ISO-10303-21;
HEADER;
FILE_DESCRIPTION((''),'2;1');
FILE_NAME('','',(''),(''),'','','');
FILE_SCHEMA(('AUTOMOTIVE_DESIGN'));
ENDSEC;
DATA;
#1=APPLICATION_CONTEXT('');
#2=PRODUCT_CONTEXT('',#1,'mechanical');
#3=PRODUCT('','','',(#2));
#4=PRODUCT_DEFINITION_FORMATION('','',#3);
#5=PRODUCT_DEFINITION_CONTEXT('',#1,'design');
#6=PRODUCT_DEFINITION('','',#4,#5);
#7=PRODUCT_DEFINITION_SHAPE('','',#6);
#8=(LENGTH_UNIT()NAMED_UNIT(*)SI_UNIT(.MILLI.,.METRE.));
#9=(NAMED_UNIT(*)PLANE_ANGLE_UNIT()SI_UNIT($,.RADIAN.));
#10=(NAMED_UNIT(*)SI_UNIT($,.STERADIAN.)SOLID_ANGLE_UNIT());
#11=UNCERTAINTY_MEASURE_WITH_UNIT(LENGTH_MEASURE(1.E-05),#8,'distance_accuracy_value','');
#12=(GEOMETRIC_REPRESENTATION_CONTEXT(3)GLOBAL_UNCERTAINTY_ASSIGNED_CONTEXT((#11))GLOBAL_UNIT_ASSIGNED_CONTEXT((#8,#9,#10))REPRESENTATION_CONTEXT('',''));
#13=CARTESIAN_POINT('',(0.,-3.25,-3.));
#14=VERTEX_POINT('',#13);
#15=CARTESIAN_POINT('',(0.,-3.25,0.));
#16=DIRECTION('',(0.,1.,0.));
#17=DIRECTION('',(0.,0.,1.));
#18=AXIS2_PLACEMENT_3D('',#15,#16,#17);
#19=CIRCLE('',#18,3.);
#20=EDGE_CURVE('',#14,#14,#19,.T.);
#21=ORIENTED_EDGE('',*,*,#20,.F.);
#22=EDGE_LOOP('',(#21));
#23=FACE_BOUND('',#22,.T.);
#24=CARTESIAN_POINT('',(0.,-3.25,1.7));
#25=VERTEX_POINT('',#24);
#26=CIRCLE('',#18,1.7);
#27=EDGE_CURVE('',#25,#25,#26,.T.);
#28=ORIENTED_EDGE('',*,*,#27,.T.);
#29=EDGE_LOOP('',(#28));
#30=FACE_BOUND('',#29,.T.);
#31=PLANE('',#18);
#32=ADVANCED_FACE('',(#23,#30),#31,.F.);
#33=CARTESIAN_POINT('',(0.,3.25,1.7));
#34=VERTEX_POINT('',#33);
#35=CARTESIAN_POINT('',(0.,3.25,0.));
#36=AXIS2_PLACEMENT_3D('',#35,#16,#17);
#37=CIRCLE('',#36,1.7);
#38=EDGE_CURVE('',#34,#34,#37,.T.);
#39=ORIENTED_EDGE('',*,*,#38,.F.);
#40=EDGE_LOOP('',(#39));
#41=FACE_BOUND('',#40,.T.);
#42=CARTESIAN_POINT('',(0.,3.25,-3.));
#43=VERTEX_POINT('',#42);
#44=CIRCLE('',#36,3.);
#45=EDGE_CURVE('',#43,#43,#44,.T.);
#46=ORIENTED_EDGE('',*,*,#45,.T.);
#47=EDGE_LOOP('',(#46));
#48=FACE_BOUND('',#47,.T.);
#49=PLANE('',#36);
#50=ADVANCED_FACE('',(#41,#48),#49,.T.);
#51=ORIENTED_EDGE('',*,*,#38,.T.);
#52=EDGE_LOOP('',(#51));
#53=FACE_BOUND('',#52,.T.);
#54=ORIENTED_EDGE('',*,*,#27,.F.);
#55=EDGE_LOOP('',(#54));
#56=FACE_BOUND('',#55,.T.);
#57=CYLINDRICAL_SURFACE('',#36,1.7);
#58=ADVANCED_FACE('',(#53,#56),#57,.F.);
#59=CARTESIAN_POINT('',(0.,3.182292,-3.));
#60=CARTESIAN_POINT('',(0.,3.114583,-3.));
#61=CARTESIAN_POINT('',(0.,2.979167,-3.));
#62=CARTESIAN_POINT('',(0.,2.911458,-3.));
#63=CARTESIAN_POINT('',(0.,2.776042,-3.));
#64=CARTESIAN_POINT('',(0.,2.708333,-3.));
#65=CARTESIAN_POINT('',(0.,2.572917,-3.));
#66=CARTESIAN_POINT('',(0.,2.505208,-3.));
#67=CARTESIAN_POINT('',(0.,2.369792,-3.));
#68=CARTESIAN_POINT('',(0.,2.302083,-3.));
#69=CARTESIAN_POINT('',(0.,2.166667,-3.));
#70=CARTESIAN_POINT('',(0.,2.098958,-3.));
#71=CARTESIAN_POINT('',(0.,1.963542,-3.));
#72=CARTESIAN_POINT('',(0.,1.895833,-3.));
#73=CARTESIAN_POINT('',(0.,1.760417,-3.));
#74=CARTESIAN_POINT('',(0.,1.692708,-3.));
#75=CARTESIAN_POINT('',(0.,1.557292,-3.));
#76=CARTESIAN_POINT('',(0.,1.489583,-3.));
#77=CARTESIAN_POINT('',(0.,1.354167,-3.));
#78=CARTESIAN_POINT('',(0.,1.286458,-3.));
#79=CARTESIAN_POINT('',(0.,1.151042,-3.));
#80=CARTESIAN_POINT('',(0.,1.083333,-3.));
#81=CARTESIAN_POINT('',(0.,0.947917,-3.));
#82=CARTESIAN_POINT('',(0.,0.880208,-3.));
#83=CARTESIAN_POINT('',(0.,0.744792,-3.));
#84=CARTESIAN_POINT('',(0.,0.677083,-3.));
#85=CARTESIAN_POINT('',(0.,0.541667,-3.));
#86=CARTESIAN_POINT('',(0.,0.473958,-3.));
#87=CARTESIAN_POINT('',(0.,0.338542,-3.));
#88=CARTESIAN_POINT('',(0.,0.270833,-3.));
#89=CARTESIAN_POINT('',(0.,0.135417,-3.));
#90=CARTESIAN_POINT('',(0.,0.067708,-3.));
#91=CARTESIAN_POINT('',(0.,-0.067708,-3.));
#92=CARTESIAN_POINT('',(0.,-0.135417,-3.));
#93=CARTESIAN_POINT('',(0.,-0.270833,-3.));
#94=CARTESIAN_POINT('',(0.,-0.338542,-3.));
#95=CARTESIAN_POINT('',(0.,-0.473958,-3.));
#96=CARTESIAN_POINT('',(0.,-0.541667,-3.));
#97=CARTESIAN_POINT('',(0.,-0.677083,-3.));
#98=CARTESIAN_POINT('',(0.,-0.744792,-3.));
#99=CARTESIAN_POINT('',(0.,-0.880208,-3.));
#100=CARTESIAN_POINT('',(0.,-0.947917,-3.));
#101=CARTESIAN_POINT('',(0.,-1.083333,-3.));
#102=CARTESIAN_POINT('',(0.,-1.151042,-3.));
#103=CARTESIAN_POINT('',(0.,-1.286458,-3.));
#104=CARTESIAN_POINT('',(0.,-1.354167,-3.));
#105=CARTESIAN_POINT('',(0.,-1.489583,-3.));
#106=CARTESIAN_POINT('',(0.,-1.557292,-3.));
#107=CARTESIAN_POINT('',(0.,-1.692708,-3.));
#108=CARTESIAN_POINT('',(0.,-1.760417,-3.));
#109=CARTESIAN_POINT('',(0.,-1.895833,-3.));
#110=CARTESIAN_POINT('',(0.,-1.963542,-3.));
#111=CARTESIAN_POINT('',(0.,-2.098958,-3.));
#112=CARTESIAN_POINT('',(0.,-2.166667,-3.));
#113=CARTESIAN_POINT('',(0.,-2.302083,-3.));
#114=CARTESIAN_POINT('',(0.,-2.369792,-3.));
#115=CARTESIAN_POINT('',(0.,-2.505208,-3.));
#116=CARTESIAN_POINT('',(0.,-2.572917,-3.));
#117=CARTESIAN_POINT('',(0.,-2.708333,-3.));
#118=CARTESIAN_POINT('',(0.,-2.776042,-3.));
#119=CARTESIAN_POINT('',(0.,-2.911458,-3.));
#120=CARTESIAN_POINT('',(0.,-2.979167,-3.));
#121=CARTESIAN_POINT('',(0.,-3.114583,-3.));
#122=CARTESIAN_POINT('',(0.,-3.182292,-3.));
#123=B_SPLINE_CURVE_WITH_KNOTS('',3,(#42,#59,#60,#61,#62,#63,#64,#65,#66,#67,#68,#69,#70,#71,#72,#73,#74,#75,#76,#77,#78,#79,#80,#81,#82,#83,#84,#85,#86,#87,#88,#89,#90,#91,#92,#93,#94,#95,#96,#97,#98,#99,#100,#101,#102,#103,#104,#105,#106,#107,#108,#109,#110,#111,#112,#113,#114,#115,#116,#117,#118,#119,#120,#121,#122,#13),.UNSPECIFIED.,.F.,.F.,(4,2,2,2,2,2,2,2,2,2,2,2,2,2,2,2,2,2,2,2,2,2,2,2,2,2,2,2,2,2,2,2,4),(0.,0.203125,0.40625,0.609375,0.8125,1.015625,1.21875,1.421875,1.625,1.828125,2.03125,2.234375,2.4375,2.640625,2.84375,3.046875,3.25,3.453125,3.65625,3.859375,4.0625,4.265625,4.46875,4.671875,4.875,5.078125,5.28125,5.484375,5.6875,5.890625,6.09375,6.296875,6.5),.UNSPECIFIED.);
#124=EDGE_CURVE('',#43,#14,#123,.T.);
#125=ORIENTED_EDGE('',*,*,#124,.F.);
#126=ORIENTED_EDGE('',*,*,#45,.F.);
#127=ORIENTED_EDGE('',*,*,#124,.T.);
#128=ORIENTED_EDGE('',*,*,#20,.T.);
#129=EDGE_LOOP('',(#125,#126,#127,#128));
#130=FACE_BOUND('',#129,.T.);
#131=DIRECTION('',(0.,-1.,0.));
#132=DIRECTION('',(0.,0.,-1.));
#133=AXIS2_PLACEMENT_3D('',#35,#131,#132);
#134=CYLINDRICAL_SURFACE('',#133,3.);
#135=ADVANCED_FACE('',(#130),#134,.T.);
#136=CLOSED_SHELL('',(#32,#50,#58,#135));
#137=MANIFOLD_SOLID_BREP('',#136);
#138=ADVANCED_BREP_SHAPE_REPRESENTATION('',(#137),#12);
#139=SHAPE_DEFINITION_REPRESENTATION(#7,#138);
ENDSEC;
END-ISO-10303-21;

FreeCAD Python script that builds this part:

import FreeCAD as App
import Part
import Sketcher

V = App.Vector

doc = App.newDocument("Part")
params = doc.addObject("Spreadsheet::Sheet", "Params")
for row, (alias, value) in enumerate([
    ("sketch1_diameter", "6 mm"),
    ("pad1_length", "6.5 mm"),
    ("sketch2_diameter", "3.4 mm"),
    ("hole_diameter", "3.4 mm"),
], start=1):
    params.set(f"A{row}", alias)
    params.set(f"B{row}", "=" + value)
    params.setAlias(f"B{row}", alias)

body = doc.addObject("PartDesign::Body", "Body")

sketch1 = body.newObject("Sketcher::SketchObject", "Sketch")
sketch1.AttachmentSupport = (doc.getObject("XZ_Plane"), [""])
sketch1.MapMode = "FlatFace"
sketch1.addGeometry(Part.Circle(V(0, 0, 0), V(0, 0, 1), 3), False)
sketch1.addConstraint([
    Sketcher.Constraint("Coincident", 0, 3, -1, 1),
    Sketcher.Constraint("Diameter", 0, 6.0),
])
sketch1.setExpression("Constraints[1]", "Params.sketch1_diameter")
pad1 = body.newObject("PartDesign::Pad", "Pad")
pad1.Profile = sketch1
pad1.setExpression("Length", "Params.pad1_length")
pad1.Midplane = True

sketch2 = body.newObject("Sketcher::SketchObject", "Sketch001")
sketch2.AttachmentSupport = (doc.getObject("XZ_Plane"), [""])
sketch2.MapMode = "FlatFace"
sketch2.AttachmentOffset = App.Placement(V(0, 0, -3.25), App.Rotation())
sketch2.addGeometry(Part.Circle(V(0, 0, 0), V(0, 0, 1), 1.7), False)
sketch2.addConstraint([
    Sketcher.Constraint("Coincident", 0, 3, -1, 1),
    Sketcher.Constraint("Diameter", 0, 3.4),
])
sketch2.setExpression("Constraints[1]", "Params.sketch2_diameter")
doc.recompute()
hole = body.newObject("PartDesign::Hole", "Hole")
hole.Profile = sketch2
hole.ThreadType = "None"
hole.setExpression("Diameter", "Params.hole_diameter")
hole.DepthType = "ThroughAll"
hole.Reversed = True

doc.recompute()
